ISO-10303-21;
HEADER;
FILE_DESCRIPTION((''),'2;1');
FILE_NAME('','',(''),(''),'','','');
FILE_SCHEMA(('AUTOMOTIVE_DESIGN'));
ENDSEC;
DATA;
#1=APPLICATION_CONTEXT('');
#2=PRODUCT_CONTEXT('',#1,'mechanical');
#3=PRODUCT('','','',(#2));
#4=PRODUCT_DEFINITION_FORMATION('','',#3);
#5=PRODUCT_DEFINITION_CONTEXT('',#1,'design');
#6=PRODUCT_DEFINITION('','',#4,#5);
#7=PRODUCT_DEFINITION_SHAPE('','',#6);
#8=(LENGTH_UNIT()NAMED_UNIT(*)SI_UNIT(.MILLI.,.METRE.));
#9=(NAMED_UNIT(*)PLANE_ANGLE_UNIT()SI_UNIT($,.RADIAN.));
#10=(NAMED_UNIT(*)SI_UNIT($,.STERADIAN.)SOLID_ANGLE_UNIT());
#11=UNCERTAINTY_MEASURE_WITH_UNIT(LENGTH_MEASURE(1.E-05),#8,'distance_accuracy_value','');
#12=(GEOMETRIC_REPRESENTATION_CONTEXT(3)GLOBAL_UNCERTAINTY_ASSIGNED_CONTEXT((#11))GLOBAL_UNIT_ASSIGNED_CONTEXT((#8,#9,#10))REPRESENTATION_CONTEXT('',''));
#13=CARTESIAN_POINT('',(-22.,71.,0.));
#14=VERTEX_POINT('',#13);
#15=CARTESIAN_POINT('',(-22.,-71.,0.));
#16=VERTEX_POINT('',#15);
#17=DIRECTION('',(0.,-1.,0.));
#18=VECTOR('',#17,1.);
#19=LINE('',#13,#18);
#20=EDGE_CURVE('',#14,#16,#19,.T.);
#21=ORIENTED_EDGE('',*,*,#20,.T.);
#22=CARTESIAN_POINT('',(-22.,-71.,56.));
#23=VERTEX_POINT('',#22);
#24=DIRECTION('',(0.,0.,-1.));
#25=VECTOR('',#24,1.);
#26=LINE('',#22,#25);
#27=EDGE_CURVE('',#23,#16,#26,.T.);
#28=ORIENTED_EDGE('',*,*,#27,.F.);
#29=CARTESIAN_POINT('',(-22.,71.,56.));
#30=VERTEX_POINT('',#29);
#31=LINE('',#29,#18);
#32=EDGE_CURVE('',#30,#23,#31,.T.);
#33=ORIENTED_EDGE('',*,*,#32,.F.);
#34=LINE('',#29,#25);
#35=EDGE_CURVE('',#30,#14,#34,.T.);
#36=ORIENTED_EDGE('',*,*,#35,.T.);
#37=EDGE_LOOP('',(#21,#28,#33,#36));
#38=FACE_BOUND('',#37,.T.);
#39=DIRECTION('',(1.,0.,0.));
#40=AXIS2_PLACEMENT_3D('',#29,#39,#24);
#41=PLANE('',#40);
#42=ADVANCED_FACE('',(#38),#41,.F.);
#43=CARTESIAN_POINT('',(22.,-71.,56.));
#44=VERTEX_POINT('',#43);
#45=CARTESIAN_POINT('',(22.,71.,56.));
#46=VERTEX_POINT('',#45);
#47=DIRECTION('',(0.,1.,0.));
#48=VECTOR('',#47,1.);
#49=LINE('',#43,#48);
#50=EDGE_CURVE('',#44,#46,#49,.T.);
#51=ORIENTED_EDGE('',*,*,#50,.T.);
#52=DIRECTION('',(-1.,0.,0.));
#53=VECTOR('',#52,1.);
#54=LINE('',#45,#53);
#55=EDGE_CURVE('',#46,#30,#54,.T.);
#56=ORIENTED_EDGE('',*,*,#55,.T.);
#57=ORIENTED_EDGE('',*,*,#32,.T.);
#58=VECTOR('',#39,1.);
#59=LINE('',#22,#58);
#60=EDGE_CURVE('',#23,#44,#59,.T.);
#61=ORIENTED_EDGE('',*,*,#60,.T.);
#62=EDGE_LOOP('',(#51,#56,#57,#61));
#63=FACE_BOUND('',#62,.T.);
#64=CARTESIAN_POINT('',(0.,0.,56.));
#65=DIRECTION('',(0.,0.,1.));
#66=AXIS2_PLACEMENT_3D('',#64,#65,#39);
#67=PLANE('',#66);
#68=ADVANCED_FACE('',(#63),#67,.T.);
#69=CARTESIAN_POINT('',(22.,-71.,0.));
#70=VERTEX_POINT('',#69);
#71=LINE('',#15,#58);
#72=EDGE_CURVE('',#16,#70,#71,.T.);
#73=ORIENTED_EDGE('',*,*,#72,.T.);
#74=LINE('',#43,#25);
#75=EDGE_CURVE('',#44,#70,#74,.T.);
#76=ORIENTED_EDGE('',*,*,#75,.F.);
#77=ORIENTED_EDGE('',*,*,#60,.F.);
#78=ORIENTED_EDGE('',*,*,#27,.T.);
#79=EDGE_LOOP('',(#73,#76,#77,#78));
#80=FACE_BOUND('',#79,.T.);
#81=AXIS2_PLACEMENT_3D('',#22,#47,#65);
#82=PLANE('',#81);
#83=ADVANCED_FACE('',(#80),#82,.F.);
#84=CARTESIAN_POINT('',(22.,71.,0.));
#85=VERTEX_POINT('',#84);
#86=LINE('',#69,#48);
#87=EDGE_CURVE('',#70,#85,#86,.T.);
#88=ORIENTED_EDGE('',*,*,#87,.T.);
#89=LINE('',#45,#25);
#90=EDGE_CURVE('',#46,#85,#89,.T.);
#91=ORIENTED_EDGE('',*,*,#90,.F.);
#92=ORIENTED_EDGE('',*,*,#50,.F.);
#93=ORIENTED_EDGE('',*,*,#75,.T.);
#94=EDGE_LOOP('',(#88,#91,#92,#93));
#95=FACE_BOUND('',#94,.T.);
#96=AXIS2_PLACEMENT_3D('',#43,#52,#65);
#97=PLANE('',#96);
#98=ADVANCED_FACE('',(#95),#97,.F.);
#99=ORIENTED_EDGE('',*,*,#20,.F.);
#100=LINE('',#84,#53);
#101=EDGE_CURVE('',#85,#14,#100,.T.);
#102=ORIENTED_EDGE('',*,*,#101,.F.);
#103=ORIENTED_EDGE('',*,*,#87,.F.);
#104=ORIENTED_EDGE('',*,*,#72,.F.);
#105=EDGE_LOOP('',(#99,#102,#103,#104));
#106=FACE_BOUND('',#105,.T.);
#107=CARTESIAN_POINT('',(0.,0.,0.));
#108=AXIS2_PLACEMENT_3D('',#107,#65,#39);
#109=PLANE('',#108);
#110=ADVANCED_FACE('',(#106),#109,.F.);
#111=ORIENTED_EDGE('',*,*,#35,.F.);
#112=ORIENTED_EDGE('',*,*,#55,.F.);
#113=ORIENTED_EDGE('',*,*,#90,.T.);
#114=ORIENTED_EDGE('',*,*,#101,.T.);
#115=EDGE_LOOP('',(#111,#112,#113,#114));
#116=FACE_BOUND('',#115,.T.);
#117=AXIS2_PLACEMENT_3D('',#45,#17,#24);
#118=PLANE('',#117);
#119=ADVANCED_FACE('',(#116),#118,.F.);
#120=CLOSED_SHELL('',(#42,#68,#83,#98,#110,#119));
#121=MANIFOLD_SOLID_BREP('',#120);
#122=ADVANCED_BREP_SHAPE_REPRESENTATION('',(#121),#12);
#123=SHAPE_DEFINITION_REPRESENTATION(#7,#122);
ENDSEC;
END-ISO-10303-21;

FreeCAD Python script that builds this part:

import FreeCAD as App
import Part
import Sketcher
from FreeCAD import Vector


def add_polygon(sketch, points):
    """Adds a closed chain of lines whose ends are joined by coincident constraints."""
    first, n = sketch.GeometryCount, len(points)
    for a, b in zip(points, points[1:] + points[:1]):
        sketch.addGeometry(Part.LineSegment(App.Vector(*a, 0), App.Vector(*b, 0)), False)
    for i in range(n):
        sketch.addConstraint(Sketcher.Constraint("Coincident", first + i, 2, first + (i + 1) % n, 1))

doc = App.newDocument("Part")
params = doc.addObject("Spreadsheet::Sheet", "Params")
for row, (alias, value) in enumerate([
    ("sketch1_width", "44 mm"),
    ("sketch1_height", "142 mm"),
    ("pad1_length", "56 mm"),
], start=1):
    params.set(f"A{row}", alias)
    params.set(f"B{row}", "=" + value)
    params.setAlias(f"B{row}", alias)

body = doc.addObject("PartDesign::Body", "Body")

# Sketch on XY plane
sketch1 = body.newObject("Sketcher::SketchObject", "Sketch")
sketch1.AttachmentSupport = (doc.getObject("XY_Plane"), [""])
sketch1.MapMode = "FlatFace"
add_polygon(sketch1, [(-22, 71), (-22, -71), (22, -71), (22, 71)])  # lines 0-3
sketch1.addConstraint([
    Sketcher.Constraint("Vertical", 0),
    Sketcher.Constraint("Horizontal", 1),
    Sketcher.Constraint("Vertical", 2),
    Sketcher.Constraint("Horizontal", 3),
    Sketcher.Constraint("Symmetric", 0, 2, 2, 2, -1, 1),
    Sketcher.Constraint("DistanceX", 1, 1, 1, 2, 44.0),
    Sketcher.Constraint("DistanceY", 0, 2, 0, 1, 142.0),
])
sketch1.setExpression("Constraints[9]", "Params.sketch1_width")
sketch1.setExpression("Constraints[10]", "Params.sketch1_height")
pad1 = body.newObject("PartDesign::Pad", "Pad")
pad1.Profile = sketch1
pad1.setExpression("Length", "Params.pad1_length")

doc.recompute()
